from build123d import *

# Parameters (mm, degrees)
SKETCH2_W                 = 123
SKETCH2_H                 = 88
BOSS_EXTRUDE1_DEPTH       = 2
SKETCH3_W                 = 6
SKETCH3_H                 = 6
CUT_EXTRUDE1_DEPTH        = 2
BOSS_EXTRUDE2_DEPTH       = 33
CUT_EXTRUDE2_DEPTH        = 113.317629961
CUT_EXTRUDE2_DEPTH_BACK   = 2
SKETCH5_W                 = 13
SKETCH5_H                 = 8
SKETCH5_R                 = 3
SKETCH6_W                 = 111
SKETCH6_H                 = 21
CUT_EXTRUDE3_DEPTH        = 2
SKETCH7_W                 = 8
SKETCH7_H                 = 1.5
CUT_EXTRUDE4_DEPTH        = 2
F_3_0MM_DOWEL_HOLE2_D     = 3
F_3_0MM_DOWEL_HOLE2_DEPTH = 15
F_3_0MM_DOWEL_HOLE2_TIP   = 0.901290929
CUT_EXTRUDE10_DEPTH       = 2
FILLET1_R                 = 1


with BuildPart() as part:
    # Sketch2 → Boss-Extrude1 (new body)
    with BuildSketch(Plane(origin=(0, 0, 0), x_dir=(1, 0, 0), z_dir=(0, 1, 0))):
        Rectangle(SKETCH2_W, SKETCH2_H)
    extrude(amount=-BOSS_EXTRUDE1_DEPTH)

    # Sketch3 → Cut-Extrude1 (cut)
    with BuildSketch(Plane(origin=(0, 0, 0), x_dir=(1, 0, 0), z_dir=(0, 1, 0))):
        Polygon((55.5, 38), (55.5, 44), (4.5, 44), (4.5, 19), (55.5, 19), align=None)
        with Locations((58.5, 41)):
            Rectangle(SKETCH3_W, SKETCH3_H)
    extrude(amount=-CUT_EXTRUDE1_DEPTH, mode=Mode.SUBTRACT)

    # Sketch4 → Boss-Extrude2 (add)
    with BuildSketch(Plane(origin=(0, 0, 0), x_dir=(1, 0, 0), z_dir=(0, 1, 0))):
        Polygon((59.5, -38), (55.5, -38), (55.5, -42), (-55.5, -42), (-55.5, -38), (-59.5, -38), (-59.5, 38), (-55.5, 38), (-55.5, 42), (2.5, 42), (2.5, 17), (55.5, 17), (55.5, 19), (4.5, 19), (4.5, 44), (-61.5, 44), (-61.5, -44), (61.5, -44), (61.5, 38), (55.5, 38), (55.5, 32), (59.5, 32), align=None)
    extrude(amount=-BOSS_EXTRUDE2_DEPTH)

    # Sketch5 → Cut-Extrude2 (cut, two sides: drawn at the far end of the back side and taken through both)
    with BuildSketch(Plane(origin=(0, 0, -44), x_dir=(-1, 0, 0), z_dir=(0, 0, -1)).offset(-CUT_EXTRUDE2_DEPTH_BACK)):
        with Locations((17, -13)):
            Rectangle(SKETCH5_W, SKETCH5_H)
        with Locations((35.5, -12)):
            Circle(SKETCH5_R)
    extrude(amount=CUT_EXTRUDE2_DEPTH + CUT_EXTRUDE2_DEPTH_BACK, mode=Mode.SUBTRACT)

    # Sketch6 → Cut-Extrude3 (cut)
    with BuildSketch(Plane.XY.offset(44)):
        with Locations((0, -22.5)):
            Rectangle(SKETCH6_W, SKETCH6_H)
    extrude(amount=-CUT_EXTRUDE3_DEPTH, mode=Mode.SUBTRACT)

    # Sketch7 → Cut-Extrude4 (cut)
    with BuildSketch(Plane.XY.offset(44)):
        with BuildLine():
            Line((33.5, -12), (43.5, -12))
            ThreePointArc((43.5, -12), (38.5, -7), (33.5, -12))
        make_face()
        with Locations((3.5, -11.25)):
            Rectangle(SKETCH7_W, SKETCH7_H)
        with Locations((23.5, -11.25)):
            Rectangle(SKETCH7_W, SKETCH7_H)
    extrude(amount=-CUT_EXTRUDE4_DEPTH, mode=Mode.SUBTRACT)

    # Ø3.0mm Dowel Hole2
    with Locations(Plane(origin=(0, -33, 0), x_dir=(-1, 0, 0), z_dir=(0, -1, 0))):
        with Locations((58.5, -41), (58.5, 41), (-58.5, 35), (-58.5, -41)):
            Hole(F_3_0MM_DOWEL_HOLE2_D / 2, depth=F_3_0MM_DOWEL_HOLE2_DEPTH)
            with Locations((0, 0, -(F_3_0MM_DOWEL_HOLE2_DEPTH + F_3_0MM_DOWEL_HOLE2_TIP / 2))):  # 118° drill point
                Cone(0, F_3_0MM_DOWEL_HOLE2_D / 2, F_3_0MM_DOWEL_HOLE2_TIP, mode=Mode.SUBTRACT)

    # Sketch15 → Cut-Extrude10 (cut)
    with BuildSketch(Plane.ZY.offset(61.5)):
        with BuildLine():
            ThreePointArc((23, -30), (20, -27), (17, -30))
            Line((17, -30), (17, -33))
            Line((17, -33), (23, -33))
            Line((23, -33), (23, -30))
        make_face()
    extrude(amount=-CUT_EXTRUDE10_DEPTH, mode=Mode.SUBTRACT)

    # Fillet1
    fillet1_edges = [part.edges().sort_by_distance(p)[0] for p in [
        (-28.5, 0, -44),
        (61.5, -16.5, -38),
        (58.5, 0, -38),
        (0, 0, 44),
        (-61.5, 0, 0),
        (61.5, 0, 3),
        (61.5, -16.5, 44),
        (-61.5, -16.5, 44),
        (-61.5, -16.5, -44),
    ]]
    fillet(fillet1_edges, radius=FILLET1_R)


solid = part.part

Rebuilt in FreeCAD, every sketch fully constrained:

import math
import FreeCAD as App
import Part
import Sketcher

V = App.Vector


def edges_at(feature, points):
    """Names of the edges that pass closest to the given points."""
    edges = feature.Shape.Edges
    near = lambda p: min(range(len(edges)), key=lambda i: edges[i].distToShape(Part.Vertex(*p))[0])
    return sorted({f"Edge{near(p) + 1}" for p in points})

doc = App.newDocument("Part")
body = doc.addObject("PartDesign::Body", "Body")

# Sketch on XZ plane
sketch1 = body.newObject("Sketcher::SketchObject", "Sketch")
sketch1.AttachmentSupport = (doc.getObject("XZ_Plane"), [""])
sketch1.MapMode = "FlatFace"
sketch1.addGeometry([
    Part.LineSegment(V(-61.5, -44, 0), V(-61.5, 44, 0)),
    Part.LineSegment(V(-61.5, 44, 0), V(61.5, 44, 0)),
    Part.LineSegment(V(61.5, 44, 0), V(61.5, -44, 0)),
    Part.LineSegment(V(61.5, -44, 0), V(-61.5, -44, 0)),
], False)
sketch1.addConstraint([
    Sketcher.Constraint("Coincident", 0, 2, 1, 1),
    Sketcher.Constraint("Coincident", 1, 2, 2, 1),
    Sketcher.Constraint("Coincident", 2, 2, 3, 1),
    Sketcher.Constraint("Coincident", 3, 2, 0, 1),
    Sketcher.Constraint("Vertical", 0),
    Sketcher.Constraint("Horizontal", 1),
    Sketcher.Constraint("Vertical", 2),
    Sketcher.Constraint("Horizontal", 3),
    Sketcher.Constraint("Symmetric", 0, 2, 2, 2, -1, 1),
    Sketcher.Constraint("DistanceX", 1, 1, 1, 2, 123.0),
    Sketcher.Constraint("DistanceY", 0, 1, 0, 2, 88.0),
])
pad1 = body.newObject("PartDesign::Pad", "Pad")
pad1.Profile = sketch1
pad1.Length = 2

# Sketch on XZ plane
sketch2 = body.newObject("Sketcher::SketchObject", "Sketch001")
sketch2.AttachmentSupport = (doc.getObject("XZ_Plane"), [""])
sketch2.MapMode = "FlatFace"
sketch2.addGeometry([
    Part.LineSegment(V(4.5, -44, 0), V(4.5, -19, 0)),  # 0
    Part.LineSegment(V(4.5, -19, 0), V(55.5, -19, 0)),  # 1
    Part.LineSegment(V(55.5, -19, 0), V(55.5, -38, 0)),  # 2
    Part.LineSegment(V(55.5, -38, 0), V(61.5, -38, 0)),  # 3
    Part.LineSegment(V(61.5, -38, 0), V(61.5, -44, 0)),  # 4
    Part.LineSegment(V(61.5, -44, 0), V(4.5, -44, 0)),  # 5
], False)
sketch2.addConstraint([
    Sketcher.Constraint("Coincident", 0, 2, 1, 1),
    Sketcher.Constraint("Coincident", 1, 2, 2, 1),
    Sketcher.Constraint("Coincident", 2, 2, 3, 1),
    Sketcher.Constraint("Coincident", 3, 2, 4, 1),
    Sketcher.Constraint("Coincident", 4, 2, 5, 1),
    Sketcher.Constraint("Coincident", 5, 2, 0, 1),
    Sketcher.Constraint("Vertical", 0),
    Sketcher.Constraint("Horizontal", 1),
    Sketcher.Constraint("Vertical", 2),
    Sketcher.Constraint("Horizontal", 3),
    Sketcher.Constraint("Vertical", 4),
    Sketcher.Constraint("Horizontal", 5),
    Sketcher.Constraint("Equal", 3, 4),
    Sketcher.Constraint("DistanceX", 1, 1, 1, 2, 51.0),
    Sketcher.Constraint("DistanceX", 3, 1, 3, 2, 6.0),
    Sketcher.Constraint("DistanceY", 0, 1, 0, 2, 25.0),
    Sketcher.Constraint("DistanceY", 0, 2, -1, 1, 19.0),
    Sketcher.Constraint("DistanceX", -1, 1, 0, 2, 4.5),
])
pocket1 = body.newObject("PartDesign::Pocket", "Pocket")
pocket1.Profile = sketch2
pocket1.Length = 2
pocket1.Reversed = True

# Sketch on XZ plane
sketch3 = body.newObject("Sketcher::SketchObject", "Sketch002")
sketch3.AttachmentSupport = (doc.getObject("XZ_Plane"), [""])
sketch3.MapMode = "FlatFace"
sketch3.addGeometry([
    Part.LineSegment(V(59.5, 38, 0), V(55.5, 38, 0)),  # 0
    Part.LineSegment(V(55.5, 38, 0), V(55.5, 42, 0)),  # 1
    Part.LineSegment(V(55.5, 42, 0), V(-55.5, 42, 0)),  # 2
    Part.LineSegment(V(-55.5, 42, 0), V(-55.5, 38, 0)),  # 3
    Part.LineSegment(V(-55.5, 38, 0), V(-59.5, 38, 0)),  # 4
    Part.LineSegment(V(-59.5, 38, 0), V(-59.5, -38, 0)),  # 5
    Part.LineSegment(V(-59.5, -38, 0), V(-55.5, -38, 0)),  # 6
    Part.LineSegment(V(-55.5, -38, 0), V(-55.5, -42, 0)),  # 7
    Part.LineSegment(V(-55.5, -42, 0), V(2.5, -42, 0)),  # 8
    Part.LineSegment(V(2.5, -42, 0), V(2.5, -17, 0)),  # 9
    Part.LineSegment(V(2.5, -17, 0), V(55.5, -17, 0)),  # 10
    Part.LineSegment(V(55.5, -17, 0), V(55.5, -19, 0)),  # 11
    Part.LineSegment(V(55.5, -19, 0), V(4.5, -19, 0)),  # 12
    Part.LineSegment(V(4.5, -19, 0), V(4.5, -44, 0)),  # 13
    Part.LineSegment(V(4.5, -44, 0), V(-61.5, -44, 0)),  # 14
    Part.LineSegment(V(-61.5, -44, 0), V(-61.5, 44, 0)),  # 15
    Part.LineSegment(V(-61.5, 44, 0), V(61.5, 44, 0)),  # 16
    Part.LineSegment(V(61.5, 44, 0), V(61.5, -38, 0)),  # 17
    Part.LineSegment(V(61.5, -38, 0), V(55.5, -38, 0)),  # 18
    Part.LineSegment(V(55.5, -38, 0), V(55.5, -32, 0)),  # 19
    Part.LineSegment(V(55.5, -32, 0), V(59.5, -32, 0)),  # 20
    Part.LineSegment(V(59.5, -32, 0), V(59.5, 38, 0)),  # 21
], False)
sketch3.addConstraint([
    Sketcher.Constraint("Coincident", 0, 2, 1, 1),
    Sketcher.Constraint("Coincident", 1, 2, 2, 1),
    Sketcher.Constraint("Coincident", 2, 2, 3, 1),
    Sketcher.Constraint("Coincident", 3, 2, 4, 1),
    Sketcher.Constraint("Coincident", 4, 2, 5, 1),
    Sketcher.Constraint("Coincident", 5, 2, 6, 1),
    Sketcher.Constraint("Coincident", 6, 2, 7, 1),
    Sketcher.Constraint("Coincident", 7, 2, 8, 1),
    Sketcher.Constraint("Coincident", 8, 2, 9, 1),
    Sketcher.Constraint("Coincident", 9, 2, 10, 1),
    Sketcher.Constraint("Coincident", 10, 2, 11, 1),
    Sketcher.Constraint("Coincident", 11, 2, 12, 1),
    Sketcher.Constraint("Coincident", 12, 2, 13, 1),
    Sketcher.Constraint("Coincident", 13, 2, 14, 1),
    Sketcher.Constraint("Coincident", 14, 2, 15, 1),
    Sketcher.Constraint("Coincident", 15, 2, 16, 1),
    Sketcher.Constraint("Coincident", 16, 2, 17, 1),
    Sketcher.Constraint("Coincident", 17, 2, 18, 1),
    Sketcher.Constraint("Coincident", 18, 2, 19, 1),
    Sketcher.Constraint("Coincident", 19, 2, 20, 1),
    Sketcher.Constraint("Coincident", 20, 2, 21, 1),
    Sketcher.Constraint("Coincident", 21, 2, 0, 1),
    Sketcher.Constraint("Horizontal", 0),
    Sketcher.Constraint("Vertical", 1),
    Sketcher.Constraint("Horizontal", 2),
    Sketcher.Constraint("Vertical", 3),
    Sketcher.Constraint("Horizontal", 4),
    Sketcher.Constraint("Vertical", 5),
    Sketcher.Constraint("Horizontal", 6),
    Sketcher.Constraint("Vertical", 7),
    Sketcher.Constraint("Horizontal", 8),
    Sketcher.Constraint("Vertical", 9),
    Sketcher.Constraint("Horizontal", 10),
    Sketcher.Constraint("Vertical", 11),
    Sketcher.Constraint("Horizontal", 12),
    Sketcher.Constraint("Vertical", 13),
    Sketcher.Constraint("Horizontal", 14),
    Sketcher.Constraint("Vertical", 15),
    Sketcher.Constraint("Horizontal", 16),
    Sketcher.Constraint("Vertical", 17),
    Sketcher.Constraint("Horizontal", 18),
    Sketcher.Constraint("Vertical", 19),
    Sketcher.Constraint("Horizontal", 20),
    Sketcher.Constraint("Vertical", 21),
    Sketcher.Constraint("Symmetric", 0, 2, 6, 2, -1, 1),
    Sketcher.Constraint("Symmetric", 14, 2, 16, 2, -1, 1),
    Sketcher.Constraint("Symmetric", 3, 2, 18, 2, -1, 1),
    Sketcher.Constraint("Symmetric", 0, 2, 3, 2, -2),
    Sketcher.Constraint("Vertical", 1, 2, 10, 2),
    Sketcher.Constraint("Equal", 0, 4),
    Sketcher.Constraint("Equal", 20, 1),
    Sketcher.Constraint("Equal", 3, 7),
    Sketcher.Constraint("Equal", 9, 13),
    Sketcher.Constraint("Equal", 18, 19),
    Sketcher.Constraint("DistanceX", 0, 2, 0, 1, 4.0),
    Sketcher.Constraint("DistanceX", 2, 2, 2, 1, 111.0),
    Sketcher.Constraint("DistanceX", 8, 1, 8, 2, 58.0),
    Sketcher.Constraint("DistanceX", 12, 2, 12, 1, 51.0),
    Sketcher.Constraint("DistanceX", 14, 2, 14, 1, 66.0),
    Sketcher.Constraint("DistanceY", 5, 2, 5, 1, 76.0),
    Sketcher.Constraint("DistanceY", 9, 1, 9, 2, 25.0),
    Sketcher.Constraint("DistanceY", 11, 2, 11, 1, 2.0),
])
pad2 = body.newObject("PartDesign::Pad", "Pad001")
pad2.Profile = sketch3
pad2.Length = 33

# Sketch on XY plane
sketch4 = body.newObject("Sketcher::SketchObject", "Sketch003")
sketch4.AttachmentSupport = (doc.getObject("XY_Plane"), [""])
sketch4.MapMode = "FlatFace"
sketch4.AttachmentOffset = App.Placement(V(0, 0, -44), App.Rotation())
sketch4.addGeometry([
    Part.LineSegment(V(-10.5, -9, 0), V(-10.5, -17, 0)),  # 0
    Part.LineSegment(V(-10.5, -17, 0), V(-23.5, -17, 0)),  # 1
    Part.LineSegment(V(-23.5, -17, 0), V(-23.5, -9, 0)),  # 2
    Part.LineSegment(V(-23.5, -9, 0), V(-10.5, -9, 0)),  # 3
    Part.Circle(V(-35.5, -12, 0), V(0, 0, 1), 3),  # 4
], False)
sketch4.addConstraint([
    Sketcher.Constraint("Coincident", 0, 2, 1, 1),
    Sketcher.Constraint("Coincident", 1, 2, 2, 1),
    Sketcher.Constraint("Coincident", 2, 2, 3, 1),
    Sketcher.Constraint("Coincident", 3, 2, 0, 1),
    Sketcher.Constraint("Vertical", 0),
    Sketcher.Constraint("Horizontal", 1),
    Sketcher.Constraint("Vertical", 2),
    Sketcher.Constraint("Horizontal", 3),
    Sketcher.Constraint("Diameter", 4, 6.0),
    Sketcher.Constraint("DistanceX", 1, 2, 1, 1, 13.0),
    Sketcher.Constraint("DistanceY", 0, 2, 0, 1, 8.0),
    Sketcher.Constraint("DistanceY", 4, 3, -1, 1, 12.0),
    Sketcher.Constraint("DistanceY", 0, 2, -1, 1, 17.0),
    Sketcher.Constraint("DistanceX", 4, 3, 0, 2, 25.0),
    Sketcher.Constraint("DistanceX", 4, 3, -1, 1, 35.5),
])
pocket2 = body.newObject("PartDesign::Pocket", "Pocket001")
pocket2.Profile = sketch4
pocket2.Type = "TwoLengths"
pocket2.Length = 113.31763
pocket2.Length2 = 2

# Sketch on XY plane
sketch5 = body.newObject("Sketcher::SketchObject", "Sketch004")
sketch5.AttachmentSupport = (doc.getObject("XY_Plane"), [""])
sketch5.MapMode = "FlatFace"
sketch5.AttachmentOffset = App.Placement(V(0, 0, 44), App.Rotation())
sketch5.addGeometry([
    Part.LineSegment(V(-55.5, -12, 0), V(-55.5, -33, 0)),
    Part.LineSegment(V(-55.5, -33, 0), V(55.5, -33, 0)),
    Part.LineSegment(V(55.5, -33, 0), V(55.5, -12, 0)),
    Part.LineSegment(V(55.5, -12, 0), V(-55.5, -12, 0)),
], False)
sketch5.addConstraint([
    Sketcher.Constraint("Coincident", 0, 2, 1, 1),
    Sketcher.Constraint("Coincident", 1, 2, 2, 1),
    Sketcher.Constraint("Coincident", 2, 2, 3, 1),
    Sketcher.Constraint("Coincident", 3, 2, 0, 1),
    Sketcher.Constraint("Vertical", 0),
    Sketcher.Constraint("Horizontal", 1),
    Sketcher.Constraint("Vertical", 2),
    Sketcher.Constraint("Horizontal", 3),
    Sketcher.Constraint("DistanceX", 1, 1, 1, 2, 111.0),
    Sketcher.Constraint("DistanceY", 0, 2, 0, 1, 21.0),
    Sketcher.Constraint("DistanceY", 0, 2, -1, 1, 33.0),
    Sketcher.Constraint("DistanceX", 0, 2, -1, 1, 55.5),
])
pocket3 = body.newObject("PartDesign::Pocket", "Pocket002")
pocket3.Profile = sketch5
pocket3.Length = 2

# Sketch on XY plane
sketch6 = body.newObject("Sketcher::SketchObject", "Sketch005")
sketch6.AttachmentSupport = (doc.getObject("XY_Plane"), [""])
sketch6.MapMode = "FlatFace"
sketch6.AttachmentOffset = App.Placement(V(0, 0, 44), App.Rotation())
sketch6.addGeometry([
    Part.LineSegment(V(33.5, -12, 0), V(43.5, -12, 0)),  # 0
    Part.ArcOfCircle(Part.Circle(V(38.5, -12, 0), V(0, 0, 1), 5), math.radians(0), math.radians(180)),  # 1
    Part.LineSegment(V(-0.5, -10.5, 0), V(-0.5, -12, 0)),  # 2
    Part.LineSegment(V(-0.5, -12, 0), V(7.5, -12, 0)),  # 3
    Part.LineSegment(V(7.5, -12, 0), V(7.5, -10.5, 0)),  # 4
    Part.LineSegment(V(7.5, -10.5, 0), V(-0.5, -10.5, 0)),  # 5
    Part.LineSegment(V(19.5, -10.5, 0), V(19.5, -12, 0)),  # 6
    Part.LineSegment(V(19.5, -12, 0), V(27.5, -12, 0)),  # 7
    Part.LineSegment(V(27.5, -12, 0), V(27.5, -10.5, 0)),  # 8
    Part.LineSegment(V(27.5, -10.5, 0), V(19.5, -10.5, 0)),  # 9
], False)
sketch6.addConstraint([
    Sketcher.Constraint("Coincident", 0, 1, 1, 2),
    Sketcher.Constraint("Coincident", 1, 1, 0, 2),
    Sketcher.Constraint("Coincident", 2, 2, 3, 1),
    Sketcher.Constraint("Coincident", 3, 2, 4, 1),
    Sketcher.Constraint("Coincident", 4, 2, 5, 1),
    Sketcher.Constraint("Coincident", 5, 2, 2, 1),
    Sketcher.Constraint("Coincident", 6, 2, 7, 1),
    Sketcher.Constraint("Coincident", 7, 2, 8, 1),
    Sketcher.Constraint("Coincident", 8, 2, 9, 1),
    Sketcher.Constraint("Coincident", 9, 2, 6, 1),
    Sketcher.Constraint("Horizontal", 0),
    Sketcher.Constraint("Vertical", 2),
    Sketcher.Constraint("Horizontal", 3),
    Sketcher.Constraint("Vertical", 4),
    Sketcher.Constraint("Horizontal", 5),
    Sketcher.Constraint("Vertical", 6),
    Sketcher.Constraint("Horizontal", 7),
    Sketcher.Constraint("Vertical", 8),
    Sketcher.Constraint("Horizontal", 9),
    Sketcher.Constraint("Horizontal", 1, 3, 0, 1),
    Sketcher.Constraint("Horizontal", 1, 1, 2, 2),
    Sketcher.Constraint("Horizontal", 3, 2, 6, 2),
    Sketcher.Constraint("Horizontal", 5, 2, 8, 2),
    Sketcher.Constraint("Equal", 5, 7),
    Sketcher.Constraint("Radius", 1, 5.0),
    Sketcher.Constraint("DistanceX", 3, 1, 3, 2, 8.0),
    Sketcher.Constraint("DistanceY", 2, 2, 2, 1, 1.5),
    Sketcher.Constraint("DistanceY", 1, 3, -1, 1, 12.0),
    Sketcher.Constraint("DistanceX", 2, 2, 0, 1, 34.0),
    Sketcher.Constraint("DistanceX", 3, 2, 6, 2, 12.0),
    Sketcher.Constraint("DistanceX", -1, 1, 1, 3, 38.5),
])
pocket4 = body.newObject("PartDesign::Pocket", "Pocket003")
pocket4.Profile = sketch6
pocket4.Length = 2

# Sketch on XZ plane
sketch7 = body.newObject("Sketcher::SketchObject", "Sketch006")
sketch7.AttachmentSupport = (doc.getObject("XZ_Plane"), [""])
sketch7.MapMode = "FlatFace"
sketch7.AttachmentOffset = App.Placement(V(0, 0, 33), App.Rotation())
sketch7.addGeometry([
    Part.Circle(V(-58.5, 41, 0), V(0, 0, 1), 1.5),
    Part.Circle(V(-58.5, -41, 0), V(0, 0, 1), 1.5),
    Part.Circle(V(58.5, -35, 0), V(0, 0, 1), 1.5),
    Part.Circle(V(58.5, 41, 0), V(0, 0, 1), 1.5),
], False)
sketch7.addConstraint([
    Sketcher.Constraint("Equal", 0, 1),
    Sketcher.Constraint("Equal", 1, 2),
    Sketcher.Constraint("Equal", 2, 3),
    Sketcher.Constraint("Symmetric", 1, 3, 3, 3, -1, 1),
    Sketcher.Constraint("Symmetric", 0, 3, 3, 3, -2),
    Sketcher.Constraint("Vertical", 2, 3, 3, 3),
    Sketcher.Constraint("Diameter", 0, 3.0),
    Sketcher.Constraint("DistanceY", -1, 1, 0, 3, 41.0),
    Sketcher.Constraint("DistanceY", 2, 3, -1, 1, 35.0),
    Sketcher.Constraint("DistanceX", 1, 3, 2, 3, 117.0),
])
doc.recompute()
hole = body.newObject("PartDesign::Hole", "Hole")
hole.Profile = sketch7
hole.ThreadType = "None"
hole.Diameter = 3
hole.DepthType = "Dimension"
hole.Depth = 15
hole.DrillPoint = "Angled"
hole.DrillPointAngle = 118

# Sketch on YZ plane
sketch8 = body.newObject("Sketcher::SketchObject", "Sketch007")
sketch8.AttachmentSupport = (doc.getObject("YZ_Plane"), [""])
sketch8.MapMode = "FlatFace"
sketch8.AttachmentOffset = App.Placement(V(0, 0, -61.5), App.Rotation())
sketch8.addGeometry([
    Part.ArcOfCircle(Part.Circle(V(-30, 20, 0), V(0, 0, 1), 3), math.radians(-90), math.radians(90)),
    Part.LineSegment(V(-30, 17, 0), V(-33, 17, 0)),
    Part.LineSegment(V(-33, 17, 0), V(-33, 23, 0)),
    Part.LineSegment(V(-33, 23, 0), V(-30, 23, 0)),
], False)
sketch8.addConstraint([
    Sketcher.Constraint("Tangent", 0, 1, 1, 1),
    Sketcher.Constraint("Coincident", 1, 2, 2, 1),
    Sketcher.Constraint("Coincident", 2, 2, 3, 1),
    Sketcher.Constraint("Tangent", 3, 2, 0, 2),
    Sketcher.Constraint("Horizontal", 1),
    Sketcher.Constraint("Vertical", 2),
    Sketcher.Constraint("Horizontal", 3),
    Sketcher.Constraint("Radius", 0, 3.0),
    Sketcher.Constraint("DistanceX", 1, 2, 1, 1, 3.0),
    Sketcher.Constraint("DistanceX", 0, 3, -1, 1, 30.0),
    Sketcher.Constraint("DistanceY", -1, 1, 0, 3, 20.0),
])
pocket5 = body.newObject("PartDesign::Pocket", "Pocket004")
pocket5.Profile = sketch8
pocket5.Length = 2
pocket5.Reversed = True
doc.recompute()

fillet = body.newObject("PartDesign::Fillet", "Fillet")
fillet.Base = (pocket5, edges_at(pocket5, [
    (-28.5, 0, -44),
    (61.5, -16.5, -38),
    (58.5, 0, -38),
    (0, 0, 44),
    (-61.5, 0, 0),
    (61.5, 0, 3),
    (61.5, -16.5, 44),
    (-61.5, -16.5, 44),
    (-61.5, -16.5, -44),
]))
fillet.Radius = 1

doc.recompute()
